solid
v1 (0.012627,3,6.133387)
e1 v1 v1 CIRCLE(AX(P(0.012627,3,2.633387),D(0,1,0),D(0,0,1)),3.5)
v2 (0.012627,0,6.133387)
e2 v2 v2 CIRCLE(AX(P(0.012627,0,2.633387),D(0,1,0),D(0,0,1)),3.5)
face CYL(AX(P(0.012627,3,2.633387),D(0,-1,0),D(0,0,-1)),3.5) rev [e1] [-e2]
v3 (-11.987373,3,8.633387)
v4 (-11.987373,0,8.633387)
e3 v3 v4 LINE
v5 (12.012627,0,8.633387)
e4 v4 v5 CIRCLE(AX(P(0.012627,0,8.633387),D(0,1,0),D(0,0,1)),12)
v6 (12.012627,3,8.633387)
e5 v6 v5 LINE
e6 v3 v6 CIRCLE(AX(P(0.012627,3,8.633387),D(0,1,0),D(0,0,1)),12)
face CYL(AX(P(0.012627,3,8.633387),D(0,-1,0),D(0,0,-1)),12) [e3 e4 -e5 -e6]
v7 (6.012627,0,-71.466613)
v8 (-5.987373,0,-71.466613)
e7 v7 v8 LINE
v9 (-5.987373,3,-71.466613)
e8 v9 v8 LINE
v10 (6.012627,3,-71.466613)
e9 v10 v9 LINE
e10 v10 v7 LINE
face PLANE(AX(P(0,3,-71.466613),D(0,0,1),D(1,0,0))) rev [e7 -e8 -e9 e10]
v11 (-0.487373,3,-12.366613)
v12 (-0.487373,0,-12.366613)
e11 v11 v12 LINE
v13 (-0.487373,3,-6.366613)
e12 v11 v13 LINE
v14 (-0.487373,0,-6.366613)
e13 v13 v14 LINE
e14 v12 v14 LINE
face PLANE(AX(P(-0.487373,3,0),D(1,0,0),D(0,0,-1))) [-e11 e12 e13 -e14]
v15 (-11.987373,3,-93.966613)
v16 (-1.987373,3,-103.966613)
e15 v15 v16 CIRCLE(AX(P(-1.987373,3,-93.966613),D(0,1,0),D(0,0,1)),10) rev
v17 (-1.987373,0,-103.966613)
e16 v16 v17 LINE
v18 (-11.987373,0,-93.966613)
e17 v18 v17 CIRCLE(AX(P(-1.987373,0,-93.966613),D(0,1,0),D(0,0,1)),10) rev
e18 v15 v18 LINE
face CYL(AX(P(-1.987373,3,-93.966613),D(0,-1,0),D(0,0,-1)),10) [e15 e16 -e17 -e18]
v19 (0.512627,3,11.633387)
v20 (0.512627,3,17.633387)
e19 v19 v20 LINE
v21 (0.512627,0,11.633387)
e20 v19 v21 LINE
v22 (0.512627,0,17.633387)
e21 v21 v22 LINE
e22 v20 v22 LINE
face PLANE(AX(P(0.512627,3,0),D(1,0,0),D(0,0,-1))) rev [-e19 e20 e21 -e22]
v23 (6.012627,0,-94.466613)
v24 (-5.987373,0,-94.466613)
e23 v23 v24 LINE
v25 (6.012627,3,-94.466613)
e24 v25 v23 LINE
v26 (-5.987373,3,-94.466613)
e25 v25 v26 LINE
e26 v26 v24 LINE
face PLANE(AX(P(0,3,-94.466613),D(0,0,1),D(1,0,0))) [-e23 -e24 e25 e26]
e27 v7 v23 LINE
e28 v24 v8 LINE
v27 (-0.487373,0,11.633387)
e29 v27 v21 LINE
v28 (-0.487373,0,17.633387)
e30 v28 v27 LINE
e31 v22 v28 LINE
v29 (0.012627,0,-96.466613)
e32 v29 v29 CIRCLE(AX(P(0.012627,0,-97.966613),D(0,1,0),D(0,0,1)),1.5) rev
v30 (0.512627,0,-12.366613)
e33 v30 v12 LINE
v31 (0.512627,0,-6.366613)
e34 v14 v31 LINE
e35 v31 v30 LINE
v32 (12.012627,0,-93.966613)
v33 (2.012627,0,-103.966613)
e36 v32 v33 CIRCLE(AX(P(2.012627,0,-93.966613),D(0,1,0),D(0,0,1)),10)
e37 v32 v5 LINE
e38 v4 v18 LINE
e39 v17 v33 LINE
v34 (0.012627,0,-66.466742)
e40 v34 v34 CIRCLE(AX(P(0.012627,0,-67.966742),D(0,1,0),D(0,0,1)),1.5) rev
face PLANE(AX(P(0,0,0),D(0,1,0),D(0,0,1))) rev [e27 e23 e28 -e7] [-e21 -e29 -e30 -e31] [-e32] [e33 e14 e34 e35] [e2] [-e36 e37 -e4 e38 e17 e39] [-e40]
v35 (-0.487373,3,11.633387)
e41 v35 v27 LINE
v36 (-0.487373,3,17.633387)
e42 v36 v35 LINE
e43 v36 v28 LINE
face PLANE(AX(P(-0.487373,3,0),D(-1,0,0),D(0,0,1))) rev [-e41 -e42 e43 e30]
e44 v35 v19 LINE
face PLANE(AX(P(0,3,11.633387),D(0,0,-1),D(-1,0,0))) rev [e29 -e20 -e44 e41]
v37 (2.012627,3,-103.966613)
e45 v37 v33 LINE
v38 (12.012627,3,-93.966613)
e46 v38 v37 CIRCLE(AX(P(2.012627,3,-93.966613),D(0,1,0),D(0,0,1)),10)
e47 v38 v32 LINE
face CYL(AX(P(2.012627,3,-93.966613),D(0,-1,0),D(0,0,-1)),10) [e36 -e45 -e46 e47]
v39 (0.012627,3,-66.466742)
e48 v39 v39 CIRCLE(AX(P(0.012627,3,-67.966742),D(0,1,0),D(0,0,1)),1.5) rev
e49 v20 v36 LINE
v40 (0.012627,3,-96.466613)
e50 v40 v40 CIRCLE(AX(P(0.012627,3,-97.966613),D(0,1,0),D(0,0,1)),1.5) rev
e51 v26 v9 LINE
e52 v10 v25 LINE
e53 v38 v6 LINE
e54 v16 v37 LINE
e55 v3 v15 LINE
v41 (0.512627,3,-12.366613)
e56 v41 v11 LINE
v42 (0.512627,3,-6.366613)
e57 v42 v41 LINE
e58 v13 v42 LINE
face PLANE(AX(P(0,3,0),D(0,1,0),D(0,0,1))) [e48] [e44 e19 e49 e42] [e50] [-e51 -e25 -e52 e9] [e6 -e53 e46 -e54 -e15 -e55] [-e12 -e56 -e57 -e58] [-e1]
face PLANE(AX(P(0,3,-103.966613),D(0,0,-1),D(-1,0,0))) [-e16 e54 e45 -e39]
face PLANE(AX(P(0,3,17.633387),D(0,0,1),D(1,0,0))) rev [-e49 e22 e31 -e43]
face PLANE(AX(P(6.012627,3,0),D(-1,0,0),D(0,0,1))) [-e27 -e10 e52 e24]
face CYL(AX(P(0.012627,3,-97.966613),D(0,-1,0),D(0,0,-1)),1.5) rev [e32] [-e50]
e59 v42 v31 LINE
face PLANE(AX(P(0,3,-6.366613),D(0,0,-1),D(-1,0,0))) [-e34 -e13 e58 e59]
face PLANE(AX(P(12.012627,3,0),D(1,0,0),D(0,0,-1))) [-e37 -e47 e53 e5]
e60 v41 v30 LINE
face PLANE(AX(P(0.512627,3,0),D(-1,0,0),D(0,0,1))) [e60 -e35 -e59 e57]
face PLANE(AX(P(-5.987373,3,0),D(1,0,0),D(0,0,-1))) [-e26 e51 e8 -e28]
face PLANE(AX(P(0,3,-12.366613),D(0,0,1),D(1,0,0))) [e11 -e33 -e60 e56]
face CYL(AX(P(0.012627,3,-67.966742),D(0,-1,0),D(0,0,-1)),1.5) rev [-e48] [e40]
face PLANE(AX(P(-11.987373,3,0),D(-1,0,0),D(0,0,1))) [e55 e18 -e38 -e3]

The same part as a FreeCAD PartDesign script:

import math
import FreeCAD as App
import Part
import Sketcher

V = App.Vector
Q = App.Units.Quantity

doc = App.newDocument("Part")
body = doc.addObject("PartDesign::Body", "Body")

# Sketch on XZ plane
sketch1 = body.newObject("Sketcher::SketchObject", "Sketch")
sketch1.AttachmentSupport = (doc.getObject("XZ_Plane"), [""])
sketch1.MapMode = "FlatFace"
sketch1.addGeometry([
    Part.LineSegment(V(-12, -94, 0), V(-12, 8.6, 0)),  # 0
    Part.ArcOfCircle(Part.Circle(V(0, 8.6, 0), V(0, 0, 1), 12), math.radians(0), math.radians(180)),  # 1
    Part.LineSegment(V(12, 8.6, 0), V(12, -94, 0)),  # 2
    Part.ArcOfCircle(Part.Circle(V(2, -94, 0), V(0, 0, 1), 10), math.radians(-90), math.radians(0)),  # 3
    Part.LineSegment(V(2, -104, 0), V(-2, -104, 0)),  # 4
    Part.ArcOfCircle(Part.Circle(V(-2, -94, 0), V(0, 0, 1), 10), math.radians(180), math.radians(270)),  # 5
    Part.LineSegment(V(0.5, 11.6, 0), V(0.5, 17.6, 0)),  # 6
    Part.LineSegment(V(0.5, 17.6, 0), V(-0.5, 17.6, 0)),  # 7
    Part.LineSegment(V(-0.5, 17.6, 0), V(-0.5, 11.6, 0)),  # 8
    Part.LineSegment(V(-0.5, 11.6, 0), V(0.5, 11.6, 0)),  # 9
    Part.Circle(V(0, 2.6, 0), V(0, 0, 1), 3.5),  # 10
    Part.LineSegment(V(-0.5, -12.4, 0), V(0.5, -12.4, 0)),  # 11
    Part.LineSegment(V(0.5, -12.4, 0), V(0.5, -6.4, 0)),  # 12
    Part.LineSegment(V(0.5, -6.4, 0), V(-0.5, -6.4, 0)),  # 13
    Part.LineSegment(V(-0.5, -6.4, 0), V(-0.5, -12.4, 0)),  # 14
    Part.Circle(V(0, -68, 0), V(0, 0, 1), 1.5),  # 15
    Part.LineSegment(V(-6, -94.5, 0), V(6, -94.5, 0)),  # 16
    Part.LineSegment(V(6, -94.5, 0), V(6, -71.5, 0)),  # 17
    Part.LineSegment(V(6, -71.5, 0), V(-6, -71.5, 0)),  # 18
    Part.LineSegment(V(-6, -71.5, 0), V(-6, -94.5, 0)),  # 19
    Part.Circle(V(0, -98, 0), V(0, 0, 1), 1.5),  # 20
], False)
sketch1.addConstraint([
    Sketcher.Constraint("Tangent", 0, 2, 1, 2),
    Sketcher.Constraint("Tangent", 1, 1, 2, 1),
    Sketcher.Constraint("Tangent", 2, 2, 3, 2),
    Sketcher.Constraint("Tangent", 3, 1, 4, 1),
    Sketcher.Constraint("Tangent", 4, 2, 5, 2),
    Sketcher.Constraint("Tangent", 5, 1, 0, 1),
    Sketcher.Constraint("Coincident", 6, 2, 7, 1),
    Sketcher.Constraint("Coincident", 7, 2, 8, 1),
    Sketcher.Constraint("Coincident", 8, 2, 9, 1),
    Sketcher.Constraint("Coincident", 9, 2, 6, 1),
    Sketcher.Constraint("Coincident", 11, 2, 12, 1),
    Sketcher.Constraint("Coincident", 12, 2, 13, 1),
    Sketcher.Constraint("Coincident", 13, 2, 14, 1),
    Sketcher.Constraint("Coincident", 14, 2, 11, 1),
    Sketcher.Constraint("Coincident", 16, 2, 17, 1),
    Sketcher.Constraint("Coincident", 17, 2, 18, 1),
    Sketcher.Constraint("Coincident", 18, 2, 19, 1),
    Sketcher.Constraint("Coincident", 19, 2, 16, 1),
    Sketcher.Constraint("Vertical", 0),
    Sketcher.Constraint("Vertical", 2),
    Sketcher.Constraint("Horizontal", 4),
    Sketcher.Constraint("Vertical", 6),
    Sketcher.Constraint("Horizontal", 7),
    Sketcher.Constraint("Vertical", 8),
    Sketcher.Constraint("Horizontal", 9),
    Sketcher.Constraint("Horizontal", 11),
    Sketcher.Constraint("Vertical", 12),
    Sketcher.Constraint("Horizontal", 13),
    Sketcher.Constraint("Vertical", 14),
    Sketcher.Constraint("Horizontal", 16),
    Sketcher.Constraint("Vertical", 17),
    Sketcher.Constraint("Horizontal", 18),
    Sketcher.Constraint("Vertical", 19),
    Sketcher.Constraint("Equal", 3, 5),
    Sketcher.Constraint("Equal", 15, 20),
    Sketcher.Constraint("Vertical", 1, 3, 10, 3),
    Sketcher.Constraint("Vertical", 10, 3, 15, 3),
    Sketcher.Constraint("Vertical", 15, 3, 20, 3),
    Sketcher.Constraint("Vertical", 9, 2, 11, 2),
    Sketcher.Constraint("Vertical", 8, 2, 13, 2),
    Sketcher.Constraint("Equal", 8, 12),
    Sketcher.Constraint("Diameter", 10, Q("7 mm")),
    Sketcher.Constraint("Diameter", 15, Q("3 mm")),
    Sketcher.Constraint("Radius", 1, Q("12 mm")),
    Sketcher.Constraint("Radius", 3, Q("10 mm")),
    Sketcher.Constraint("DistanceX", 7, 2, 7, 1, Q("1 mm")),
    Sketcher.Constraint("DistanceX", 16, 1, 16, 2, Q("12 mm")),
    Sketcher.Constraint("DistanceY", 6, 1, 6, 2, Q("6 mm")),
    Sketcher.Constraint("DistanceY", 17, 1, 17, 2, Q("23 mm")),
    Sketcher.Constraint("DistanceY", 0, 1, 0, 2, Q("102.6 mm")),
    Sketcher.Constraint("DistanceY", 10, 3, 1, 3, Q("6 mm")),
    Sketcher.Constraint("DistanceY", 20, 3, 3, 3, Q("4 mm")),
    Sketcher.Constraint("DistanceY", 1, 3, 6, 2, Q("9 mm")),
    Sketcher.Constraint("DistanceY", 11, 2, 10, 3, Q("15 mm")),
    Sketcher.Constraint("DistanceX", 3, 3, 16, 2, Q("4 mm")),
    Sketcher.Constraint("DistanceX", 1, 3, 6, 2, Q("0.5 mm")),
    Sketcher.Constraint("DistanceY", 16, 2, 3, 3, Q("0.5 mm")),
    Sketcher.Constraint("DistanceY", 3, 3, 15, 3, Q("25.999871 mm")),
    Sketcher.Constraint("DistanceX", -1, 1, 1, 3, Q("0.012627 mm")),
    Sketcher.Constraint("DistanceY", -1, 1, 1, 3, Q("8.633387 mm")),
])
pad1 = body.newObject("PartDesign::Pad", "Pad")
pad1.Profile = sketch1
pad1.Length = 3
pad1.Reversed = True

doc.recompute()
